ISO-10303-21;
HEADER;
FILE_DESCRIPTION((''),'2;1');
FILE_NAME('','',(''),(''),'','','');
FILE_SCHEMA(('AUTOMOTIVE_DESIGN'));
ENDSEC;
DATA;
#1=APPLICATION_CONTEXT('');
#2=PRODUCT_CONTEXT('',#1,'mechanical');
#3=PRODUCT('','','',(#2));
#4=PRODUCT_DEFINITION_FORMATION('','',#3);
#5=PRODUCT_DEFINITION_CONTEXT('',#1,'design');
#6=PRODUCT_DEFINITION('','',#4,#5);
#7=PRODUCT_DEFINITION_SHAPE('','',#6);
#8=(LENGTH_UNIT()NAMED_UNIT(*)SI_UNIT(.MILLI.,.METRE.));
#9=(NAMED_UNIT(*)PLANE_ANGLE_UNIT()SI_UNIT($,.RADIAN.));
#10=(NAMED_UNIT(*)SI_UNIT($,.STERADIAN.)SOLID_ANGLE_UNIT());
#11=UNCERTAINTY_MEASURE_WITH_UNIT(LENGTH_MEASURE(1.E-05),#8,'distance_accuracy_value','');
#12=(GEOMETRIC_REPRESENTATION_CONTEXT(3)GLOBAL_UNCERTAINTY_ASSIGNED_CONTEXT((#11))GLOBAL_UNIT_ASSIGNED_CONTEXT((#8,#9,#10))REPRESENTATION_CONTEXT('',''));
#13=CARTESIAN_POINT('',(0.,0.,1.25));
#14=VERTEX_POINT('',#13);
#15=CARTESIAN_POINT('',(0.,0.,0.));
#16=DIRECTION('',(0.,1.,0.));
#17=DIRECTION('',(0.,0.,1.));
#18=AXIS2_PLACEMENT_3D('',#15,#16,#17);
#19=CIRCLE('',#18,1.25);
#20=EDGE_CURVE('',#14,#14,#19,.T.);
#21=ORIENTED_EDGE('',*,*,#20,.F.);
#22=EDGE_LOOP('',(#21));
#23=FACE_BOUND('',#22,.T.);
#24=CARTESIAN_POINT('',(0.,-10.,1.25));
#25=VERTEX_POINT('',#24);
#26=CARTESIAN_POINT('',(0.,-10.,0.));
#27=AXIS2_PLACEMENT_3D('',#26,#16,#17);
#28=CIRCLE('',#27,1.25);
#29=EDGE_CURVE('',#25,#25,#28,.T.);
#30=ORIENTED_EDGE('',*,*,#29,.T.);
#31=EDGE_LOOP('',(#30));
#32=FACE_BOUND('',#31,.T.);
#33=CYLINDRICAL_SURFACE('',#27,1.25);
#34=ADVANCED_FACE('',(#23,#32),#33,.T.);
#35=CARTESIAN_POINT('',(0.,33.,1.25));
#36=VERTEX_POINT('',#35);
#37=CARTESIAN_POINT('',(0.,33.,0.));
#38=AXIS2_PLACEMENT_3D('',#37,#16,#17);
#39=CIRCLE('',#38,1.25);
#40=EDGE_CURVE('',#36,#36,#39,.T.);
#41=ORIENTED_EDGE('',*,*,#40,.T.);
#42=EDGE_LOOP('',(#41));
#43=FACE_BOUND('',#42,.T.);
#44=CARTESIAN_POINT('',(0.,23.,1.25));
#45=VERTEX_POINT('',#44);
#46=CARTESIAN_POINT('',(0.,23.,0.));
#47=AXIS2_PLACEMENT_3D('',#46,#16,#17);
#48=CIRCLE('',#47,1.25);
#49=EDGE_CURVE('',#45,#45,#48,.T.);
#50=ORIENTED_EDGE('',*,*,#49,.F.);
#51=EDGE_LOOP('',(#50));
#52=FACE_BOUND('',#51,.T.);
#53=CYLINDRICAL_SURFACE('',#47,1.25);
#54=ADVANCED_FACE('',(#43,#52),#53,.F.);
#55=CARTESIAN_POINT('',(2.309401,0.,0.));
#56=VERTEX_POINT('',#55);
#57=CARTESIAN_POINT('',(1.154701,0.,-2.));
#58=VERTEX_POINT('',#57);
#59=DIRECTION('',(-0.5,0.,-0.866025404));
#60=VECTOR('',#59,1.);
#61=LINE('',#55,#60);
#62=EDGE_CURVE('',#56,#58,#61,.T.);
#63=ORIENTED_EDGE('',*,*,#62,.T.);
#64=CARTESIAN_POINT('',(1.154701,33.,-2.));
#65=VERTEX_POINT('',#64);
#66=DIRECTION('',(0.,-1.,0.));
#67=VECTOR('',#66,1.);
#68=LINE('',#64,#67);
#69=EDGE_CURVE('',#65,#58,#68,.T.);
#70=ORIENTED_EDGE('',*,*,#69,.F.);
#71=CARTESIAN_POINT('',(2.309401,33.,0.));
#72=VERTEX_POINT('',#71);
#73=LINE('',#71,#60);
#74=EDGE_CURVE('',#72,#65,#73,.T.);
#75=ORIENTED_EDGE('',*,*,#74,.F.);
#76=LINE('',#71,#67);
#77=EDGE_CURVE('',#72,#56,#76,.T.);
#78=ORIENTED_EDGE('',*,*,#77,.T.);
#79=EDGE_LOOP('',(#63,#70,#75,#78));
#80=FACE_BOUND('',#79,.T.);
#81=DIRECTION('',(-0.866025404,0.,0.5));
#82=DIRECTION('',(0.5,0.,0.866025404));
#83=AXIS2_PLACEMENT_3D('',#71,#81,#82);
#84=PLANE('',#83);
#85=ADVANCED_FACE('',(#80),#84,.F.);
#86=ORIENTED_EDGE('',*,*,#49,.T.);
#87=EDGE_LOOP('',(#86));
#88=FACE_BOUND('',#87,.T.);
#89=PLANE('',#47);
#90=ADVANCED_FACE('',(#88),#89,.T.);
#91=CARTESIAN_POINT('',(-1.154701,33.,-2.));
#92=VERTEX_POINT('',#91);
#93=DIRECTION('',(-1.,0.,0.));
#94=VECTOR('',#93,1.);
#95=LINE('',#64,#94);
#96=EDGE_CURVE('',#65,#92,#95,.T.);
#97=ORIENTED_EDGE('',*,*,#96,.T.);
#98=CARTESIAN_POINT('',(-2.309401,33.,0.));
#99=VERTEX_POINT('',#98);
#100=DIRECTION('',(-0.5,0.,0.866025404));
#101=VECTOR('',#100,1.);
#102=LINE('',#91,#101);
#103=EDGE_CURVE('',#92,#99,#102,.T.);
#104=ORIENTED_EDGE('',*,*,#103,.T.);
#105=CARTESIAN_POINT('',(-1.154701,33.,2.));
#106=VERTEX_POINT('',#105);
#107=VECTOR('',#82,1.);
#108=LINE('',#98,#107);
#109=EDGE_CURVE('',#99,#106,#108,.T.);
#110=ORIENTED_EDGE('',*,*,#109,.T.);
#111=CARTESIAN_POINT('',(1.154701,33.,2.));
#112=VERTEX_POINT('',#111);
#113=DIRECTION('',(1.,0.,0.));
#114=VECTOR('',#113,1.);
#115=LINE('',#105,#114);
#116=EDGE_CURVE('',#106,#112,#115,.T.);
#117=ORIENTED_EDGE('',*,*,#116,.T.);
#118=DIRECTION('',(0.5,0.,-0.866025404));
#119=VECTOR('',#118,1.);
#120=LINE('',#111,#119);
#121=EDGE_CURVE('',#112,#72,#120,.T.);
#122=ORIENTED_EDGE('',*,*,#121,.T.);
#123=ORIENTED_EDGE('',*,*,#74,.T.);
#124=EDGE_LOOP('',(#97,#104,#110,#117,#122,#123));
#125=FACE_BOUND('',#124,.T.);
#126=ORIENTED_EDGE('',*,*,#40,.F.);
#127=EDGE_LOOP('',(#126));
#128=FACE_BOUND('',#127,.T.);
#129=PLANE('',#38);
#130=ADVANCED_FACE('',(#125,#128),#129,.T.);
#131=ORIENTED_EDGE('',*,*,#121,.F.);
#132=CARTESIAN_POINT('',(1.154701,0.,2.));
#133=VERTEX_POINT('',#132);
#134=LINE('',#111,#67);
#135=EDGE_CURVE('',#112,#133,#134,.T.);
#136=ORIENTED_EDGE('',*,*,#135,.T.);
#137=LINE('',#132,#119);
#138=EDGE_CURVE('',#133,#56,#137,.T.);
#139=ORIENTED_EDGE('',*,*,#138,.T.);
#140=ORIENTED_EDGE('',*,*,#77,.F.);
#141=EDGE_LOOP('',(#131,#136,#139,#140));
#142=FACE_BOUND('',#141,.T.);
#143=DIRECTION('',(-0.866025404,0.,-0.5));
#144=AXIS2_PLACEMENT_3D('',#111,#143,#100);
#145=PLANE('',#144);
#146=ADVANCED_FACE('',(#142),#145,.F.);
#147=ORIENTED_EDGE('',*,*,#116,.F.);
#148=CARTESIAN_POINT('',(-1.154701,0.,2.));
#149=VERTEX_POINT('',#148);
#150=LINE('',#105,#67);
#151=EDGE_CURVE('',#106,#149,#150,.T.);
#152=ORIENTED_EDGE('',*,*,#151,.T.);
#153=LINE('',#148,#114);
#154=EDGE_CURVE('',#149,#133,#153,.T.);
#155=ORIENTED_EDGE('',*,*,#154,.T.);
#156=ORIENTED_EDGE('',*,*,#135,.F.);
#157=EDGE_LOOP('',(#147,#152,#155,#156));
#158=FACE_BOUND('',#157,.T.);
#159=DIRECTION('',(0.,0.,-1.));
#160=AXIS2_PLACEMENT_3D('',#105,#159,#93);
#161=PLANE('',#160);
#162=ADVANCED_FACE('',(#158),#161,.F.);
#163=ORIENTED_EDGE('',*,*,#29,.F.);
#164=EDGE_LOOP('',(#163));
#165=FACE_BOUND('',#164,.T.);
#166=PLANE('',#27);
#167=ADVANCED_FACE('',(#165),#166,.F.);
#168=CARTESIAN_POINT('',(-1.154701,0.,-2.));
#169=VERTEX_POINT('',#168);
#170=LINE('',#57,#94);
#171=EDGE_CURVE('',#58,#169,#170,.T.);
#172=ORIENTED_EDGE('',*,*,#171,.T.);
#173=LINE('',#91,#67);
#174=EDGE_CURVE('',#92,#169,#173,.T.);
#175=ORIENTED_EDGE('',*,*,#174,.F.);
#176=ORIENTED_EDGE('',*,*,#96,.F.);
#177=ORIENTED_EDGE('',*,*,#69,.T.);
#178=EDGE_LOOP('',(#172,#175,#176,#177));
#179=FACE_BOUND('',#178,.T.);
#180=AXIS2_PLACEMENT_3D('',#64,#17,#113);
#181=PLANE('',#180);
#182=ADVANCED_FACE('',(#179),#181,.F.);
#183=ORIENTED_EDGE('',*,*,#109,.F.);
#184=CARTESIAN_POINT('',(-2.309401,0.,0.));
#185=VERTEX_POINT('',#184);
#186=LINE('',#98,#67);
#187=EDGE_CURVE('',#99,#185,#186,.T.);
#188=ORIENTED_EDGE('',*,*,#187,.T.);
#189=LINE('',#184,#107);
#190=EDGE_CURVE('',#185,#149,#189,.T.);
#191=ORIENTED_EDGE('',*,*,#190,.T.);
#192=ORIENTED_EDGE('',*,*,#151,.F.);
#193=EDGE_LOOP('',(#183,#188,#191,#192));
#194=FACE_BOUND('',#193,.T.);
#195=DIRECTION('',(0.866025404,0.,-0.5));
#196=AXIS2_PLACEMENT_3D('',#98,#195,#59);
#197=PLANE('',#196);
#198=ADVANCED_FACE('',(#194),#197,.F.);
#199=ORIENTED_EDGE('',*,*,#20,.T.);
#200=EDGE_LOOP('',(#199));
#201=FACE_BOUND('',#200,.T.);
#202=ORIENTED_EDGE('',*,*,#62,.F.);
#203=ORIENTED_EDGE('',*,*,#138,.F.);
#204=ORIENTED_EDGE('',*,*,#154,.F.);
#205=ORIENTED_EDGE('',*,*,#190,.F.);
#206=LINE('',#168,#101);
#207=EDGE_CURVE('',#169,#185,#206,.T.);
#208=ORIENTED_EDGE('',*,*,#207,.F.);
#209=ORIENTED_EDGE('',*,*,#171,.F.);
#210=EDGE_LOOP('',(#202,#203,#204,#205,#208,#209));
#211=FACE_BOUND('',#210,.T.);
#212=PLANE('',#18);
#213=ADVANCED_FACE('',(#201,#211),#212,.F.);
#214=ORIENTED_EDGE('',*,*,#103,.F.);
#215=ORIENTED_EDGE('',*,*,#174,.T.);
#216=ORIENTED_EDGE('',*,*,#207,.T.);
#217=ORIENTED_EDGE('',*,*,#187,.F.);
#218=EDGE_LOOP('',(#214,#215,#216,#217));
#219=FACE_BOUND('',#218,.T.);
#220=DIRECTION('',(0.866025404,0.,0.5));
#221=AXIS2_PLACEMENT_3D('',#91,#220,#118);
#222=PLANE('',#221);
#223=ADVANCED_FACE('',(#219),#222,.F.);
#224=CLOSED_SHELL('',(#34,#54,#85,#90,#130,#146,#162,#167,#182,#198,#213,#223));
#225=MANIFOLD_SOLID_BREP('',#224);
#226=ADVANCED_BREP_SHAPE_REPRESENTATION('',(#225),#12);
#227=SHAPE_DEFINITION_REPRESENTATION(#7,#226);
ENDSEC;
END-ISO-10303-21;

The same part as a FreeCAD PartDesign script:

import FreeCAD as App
import Part
import Sketcher
from FreeCAD import Vector
Q = App.Units.Quantity

doc = App.newDocument("Part")
body = doc.addObject("PartDesign::Body", "Body")

sketch1 = body.newObject("Sketcher::SketchObject", "Sketch")
sketch1.AttachmentSupport = (doc.getObject("XZ_Plane"), [""])
sketch1.MapMode = "FlatFace"
sketch1.addGeometry([
    Part.LineSegment(Vector(1.2, 2, 0), Vector(2.3, 0, 0)),
    Part.LineSegment(Vector(2.3, 0, 0), Vector(1.2, -2, 0)),
    Part.LineSegment(Vector(1.2, -2, 0), Vector(-1.2, -2, 0)),
    Part.LineSegment(Vector(-1.2, -2, 0), Vector(-2.3, 0, 0)),
    Part.LineSegment(Vector(-2.3, 0, 0), Vector(-1.2, 2, 0)),
    Part.LineSegment(Vector(-1.2, 2, 0), Vector(1.2, 2, 0)),
], False)
sketch1.addConstraint([
    Sketcher.Constraint("Coincident", 0, 2, 1, 1),
    Sketcher.Constraint("Coincident", 1, 2, 2, 1),
    Sketcher.Constraint("Coincident", 2, 2, 3, 1),
    Sketcher.Constraint("Coincident", 3, 2, 4, 1),
    Sketcher.Constraint("Coincident", 4, 2, 5, 1),
    Sketcher.Constraint("Coincident", 5, 2, 0, 1),
    Sketcher.Constraint("Horizontal", 2),
    Sketcher.Constraint("Horizontal", 5),
    Sketcher.Constraint("Symmetric", 0, 2, 3, 2, -1, 1),
    Sketcher.Constraint("Symmetric", 1, 2, 4, 2, -1, 1),
    Sketcher.Constraint("PointOnObject", 0, 2, -1),
    Sketcher.Constraint("Parallel", 0, 3),
    Sketcher.Constraint("Vertical", 2, 2, 4, 2),
    Sketcher.Constraint("Angle", 0, Q("-60 deg")),
    Sketcher.Constraint("DistanceY", 1, 2, -1, 1, 2.0),
    Sketcher.Constraint("DistanceX", 2, 2, 2, 1, 2.309401),
])
pad1 = body.newObject("PartDesign::Pad", "Pad")
pad1.Profile = sketch1
pad1.Length = 33
pad1.Reversed = True

sketch2 = body.newObject("Sketcher::SketchObject", "Sketch001")
sketch2.AttachmentSupport = (doc.getObject("XZ_Plane"), [""])
sketch2.MapMode = "FlatFace"
sketch2.addGeometry(Part.Circle(Vector(0, 0, 0), Vector(0, 0, 1), 1.2), False)
sketch2.addConstraint([
    Sketcher.Constraint("Coincident", 0, 3, -1, 1),
    Sketcher.Constraint("Diameter", 0, 2.5),
])
pad2 = body.newObject("PartDesign::Pad", "Pad001")
pad2.Profile = sketch2
pad2.Length = 10

sketch3 = body.newObject("Sketcher::SketchObject", "Sketch002")
sketch3.AttachmentSupport = (doc.getObject("XZ_Plane"), [""])
sketch3.MapMode = "FlatFace"
sketch3.AttachmentOffset = App.Placement(Vector(0, 0, -33), App.Rotation())
sketch3.addGeometry(Part.Circle(Vector(0, 0, 0), Vector(0, 0, 1), 1.2), False)
sketch3.addConstraint([
    Sketcher.Constraint("Coincident", 0, 3, -1, 1),
    Sketcher.Constraint("Diameter", 0, 2.5),
])
pocket1 = body.newObject("PartDesign::Pocket", "Pocket")
pocket1.Profile = sketch3
pocket1.Length = 10
pocket1.Reversed = True

doc.recompute()
